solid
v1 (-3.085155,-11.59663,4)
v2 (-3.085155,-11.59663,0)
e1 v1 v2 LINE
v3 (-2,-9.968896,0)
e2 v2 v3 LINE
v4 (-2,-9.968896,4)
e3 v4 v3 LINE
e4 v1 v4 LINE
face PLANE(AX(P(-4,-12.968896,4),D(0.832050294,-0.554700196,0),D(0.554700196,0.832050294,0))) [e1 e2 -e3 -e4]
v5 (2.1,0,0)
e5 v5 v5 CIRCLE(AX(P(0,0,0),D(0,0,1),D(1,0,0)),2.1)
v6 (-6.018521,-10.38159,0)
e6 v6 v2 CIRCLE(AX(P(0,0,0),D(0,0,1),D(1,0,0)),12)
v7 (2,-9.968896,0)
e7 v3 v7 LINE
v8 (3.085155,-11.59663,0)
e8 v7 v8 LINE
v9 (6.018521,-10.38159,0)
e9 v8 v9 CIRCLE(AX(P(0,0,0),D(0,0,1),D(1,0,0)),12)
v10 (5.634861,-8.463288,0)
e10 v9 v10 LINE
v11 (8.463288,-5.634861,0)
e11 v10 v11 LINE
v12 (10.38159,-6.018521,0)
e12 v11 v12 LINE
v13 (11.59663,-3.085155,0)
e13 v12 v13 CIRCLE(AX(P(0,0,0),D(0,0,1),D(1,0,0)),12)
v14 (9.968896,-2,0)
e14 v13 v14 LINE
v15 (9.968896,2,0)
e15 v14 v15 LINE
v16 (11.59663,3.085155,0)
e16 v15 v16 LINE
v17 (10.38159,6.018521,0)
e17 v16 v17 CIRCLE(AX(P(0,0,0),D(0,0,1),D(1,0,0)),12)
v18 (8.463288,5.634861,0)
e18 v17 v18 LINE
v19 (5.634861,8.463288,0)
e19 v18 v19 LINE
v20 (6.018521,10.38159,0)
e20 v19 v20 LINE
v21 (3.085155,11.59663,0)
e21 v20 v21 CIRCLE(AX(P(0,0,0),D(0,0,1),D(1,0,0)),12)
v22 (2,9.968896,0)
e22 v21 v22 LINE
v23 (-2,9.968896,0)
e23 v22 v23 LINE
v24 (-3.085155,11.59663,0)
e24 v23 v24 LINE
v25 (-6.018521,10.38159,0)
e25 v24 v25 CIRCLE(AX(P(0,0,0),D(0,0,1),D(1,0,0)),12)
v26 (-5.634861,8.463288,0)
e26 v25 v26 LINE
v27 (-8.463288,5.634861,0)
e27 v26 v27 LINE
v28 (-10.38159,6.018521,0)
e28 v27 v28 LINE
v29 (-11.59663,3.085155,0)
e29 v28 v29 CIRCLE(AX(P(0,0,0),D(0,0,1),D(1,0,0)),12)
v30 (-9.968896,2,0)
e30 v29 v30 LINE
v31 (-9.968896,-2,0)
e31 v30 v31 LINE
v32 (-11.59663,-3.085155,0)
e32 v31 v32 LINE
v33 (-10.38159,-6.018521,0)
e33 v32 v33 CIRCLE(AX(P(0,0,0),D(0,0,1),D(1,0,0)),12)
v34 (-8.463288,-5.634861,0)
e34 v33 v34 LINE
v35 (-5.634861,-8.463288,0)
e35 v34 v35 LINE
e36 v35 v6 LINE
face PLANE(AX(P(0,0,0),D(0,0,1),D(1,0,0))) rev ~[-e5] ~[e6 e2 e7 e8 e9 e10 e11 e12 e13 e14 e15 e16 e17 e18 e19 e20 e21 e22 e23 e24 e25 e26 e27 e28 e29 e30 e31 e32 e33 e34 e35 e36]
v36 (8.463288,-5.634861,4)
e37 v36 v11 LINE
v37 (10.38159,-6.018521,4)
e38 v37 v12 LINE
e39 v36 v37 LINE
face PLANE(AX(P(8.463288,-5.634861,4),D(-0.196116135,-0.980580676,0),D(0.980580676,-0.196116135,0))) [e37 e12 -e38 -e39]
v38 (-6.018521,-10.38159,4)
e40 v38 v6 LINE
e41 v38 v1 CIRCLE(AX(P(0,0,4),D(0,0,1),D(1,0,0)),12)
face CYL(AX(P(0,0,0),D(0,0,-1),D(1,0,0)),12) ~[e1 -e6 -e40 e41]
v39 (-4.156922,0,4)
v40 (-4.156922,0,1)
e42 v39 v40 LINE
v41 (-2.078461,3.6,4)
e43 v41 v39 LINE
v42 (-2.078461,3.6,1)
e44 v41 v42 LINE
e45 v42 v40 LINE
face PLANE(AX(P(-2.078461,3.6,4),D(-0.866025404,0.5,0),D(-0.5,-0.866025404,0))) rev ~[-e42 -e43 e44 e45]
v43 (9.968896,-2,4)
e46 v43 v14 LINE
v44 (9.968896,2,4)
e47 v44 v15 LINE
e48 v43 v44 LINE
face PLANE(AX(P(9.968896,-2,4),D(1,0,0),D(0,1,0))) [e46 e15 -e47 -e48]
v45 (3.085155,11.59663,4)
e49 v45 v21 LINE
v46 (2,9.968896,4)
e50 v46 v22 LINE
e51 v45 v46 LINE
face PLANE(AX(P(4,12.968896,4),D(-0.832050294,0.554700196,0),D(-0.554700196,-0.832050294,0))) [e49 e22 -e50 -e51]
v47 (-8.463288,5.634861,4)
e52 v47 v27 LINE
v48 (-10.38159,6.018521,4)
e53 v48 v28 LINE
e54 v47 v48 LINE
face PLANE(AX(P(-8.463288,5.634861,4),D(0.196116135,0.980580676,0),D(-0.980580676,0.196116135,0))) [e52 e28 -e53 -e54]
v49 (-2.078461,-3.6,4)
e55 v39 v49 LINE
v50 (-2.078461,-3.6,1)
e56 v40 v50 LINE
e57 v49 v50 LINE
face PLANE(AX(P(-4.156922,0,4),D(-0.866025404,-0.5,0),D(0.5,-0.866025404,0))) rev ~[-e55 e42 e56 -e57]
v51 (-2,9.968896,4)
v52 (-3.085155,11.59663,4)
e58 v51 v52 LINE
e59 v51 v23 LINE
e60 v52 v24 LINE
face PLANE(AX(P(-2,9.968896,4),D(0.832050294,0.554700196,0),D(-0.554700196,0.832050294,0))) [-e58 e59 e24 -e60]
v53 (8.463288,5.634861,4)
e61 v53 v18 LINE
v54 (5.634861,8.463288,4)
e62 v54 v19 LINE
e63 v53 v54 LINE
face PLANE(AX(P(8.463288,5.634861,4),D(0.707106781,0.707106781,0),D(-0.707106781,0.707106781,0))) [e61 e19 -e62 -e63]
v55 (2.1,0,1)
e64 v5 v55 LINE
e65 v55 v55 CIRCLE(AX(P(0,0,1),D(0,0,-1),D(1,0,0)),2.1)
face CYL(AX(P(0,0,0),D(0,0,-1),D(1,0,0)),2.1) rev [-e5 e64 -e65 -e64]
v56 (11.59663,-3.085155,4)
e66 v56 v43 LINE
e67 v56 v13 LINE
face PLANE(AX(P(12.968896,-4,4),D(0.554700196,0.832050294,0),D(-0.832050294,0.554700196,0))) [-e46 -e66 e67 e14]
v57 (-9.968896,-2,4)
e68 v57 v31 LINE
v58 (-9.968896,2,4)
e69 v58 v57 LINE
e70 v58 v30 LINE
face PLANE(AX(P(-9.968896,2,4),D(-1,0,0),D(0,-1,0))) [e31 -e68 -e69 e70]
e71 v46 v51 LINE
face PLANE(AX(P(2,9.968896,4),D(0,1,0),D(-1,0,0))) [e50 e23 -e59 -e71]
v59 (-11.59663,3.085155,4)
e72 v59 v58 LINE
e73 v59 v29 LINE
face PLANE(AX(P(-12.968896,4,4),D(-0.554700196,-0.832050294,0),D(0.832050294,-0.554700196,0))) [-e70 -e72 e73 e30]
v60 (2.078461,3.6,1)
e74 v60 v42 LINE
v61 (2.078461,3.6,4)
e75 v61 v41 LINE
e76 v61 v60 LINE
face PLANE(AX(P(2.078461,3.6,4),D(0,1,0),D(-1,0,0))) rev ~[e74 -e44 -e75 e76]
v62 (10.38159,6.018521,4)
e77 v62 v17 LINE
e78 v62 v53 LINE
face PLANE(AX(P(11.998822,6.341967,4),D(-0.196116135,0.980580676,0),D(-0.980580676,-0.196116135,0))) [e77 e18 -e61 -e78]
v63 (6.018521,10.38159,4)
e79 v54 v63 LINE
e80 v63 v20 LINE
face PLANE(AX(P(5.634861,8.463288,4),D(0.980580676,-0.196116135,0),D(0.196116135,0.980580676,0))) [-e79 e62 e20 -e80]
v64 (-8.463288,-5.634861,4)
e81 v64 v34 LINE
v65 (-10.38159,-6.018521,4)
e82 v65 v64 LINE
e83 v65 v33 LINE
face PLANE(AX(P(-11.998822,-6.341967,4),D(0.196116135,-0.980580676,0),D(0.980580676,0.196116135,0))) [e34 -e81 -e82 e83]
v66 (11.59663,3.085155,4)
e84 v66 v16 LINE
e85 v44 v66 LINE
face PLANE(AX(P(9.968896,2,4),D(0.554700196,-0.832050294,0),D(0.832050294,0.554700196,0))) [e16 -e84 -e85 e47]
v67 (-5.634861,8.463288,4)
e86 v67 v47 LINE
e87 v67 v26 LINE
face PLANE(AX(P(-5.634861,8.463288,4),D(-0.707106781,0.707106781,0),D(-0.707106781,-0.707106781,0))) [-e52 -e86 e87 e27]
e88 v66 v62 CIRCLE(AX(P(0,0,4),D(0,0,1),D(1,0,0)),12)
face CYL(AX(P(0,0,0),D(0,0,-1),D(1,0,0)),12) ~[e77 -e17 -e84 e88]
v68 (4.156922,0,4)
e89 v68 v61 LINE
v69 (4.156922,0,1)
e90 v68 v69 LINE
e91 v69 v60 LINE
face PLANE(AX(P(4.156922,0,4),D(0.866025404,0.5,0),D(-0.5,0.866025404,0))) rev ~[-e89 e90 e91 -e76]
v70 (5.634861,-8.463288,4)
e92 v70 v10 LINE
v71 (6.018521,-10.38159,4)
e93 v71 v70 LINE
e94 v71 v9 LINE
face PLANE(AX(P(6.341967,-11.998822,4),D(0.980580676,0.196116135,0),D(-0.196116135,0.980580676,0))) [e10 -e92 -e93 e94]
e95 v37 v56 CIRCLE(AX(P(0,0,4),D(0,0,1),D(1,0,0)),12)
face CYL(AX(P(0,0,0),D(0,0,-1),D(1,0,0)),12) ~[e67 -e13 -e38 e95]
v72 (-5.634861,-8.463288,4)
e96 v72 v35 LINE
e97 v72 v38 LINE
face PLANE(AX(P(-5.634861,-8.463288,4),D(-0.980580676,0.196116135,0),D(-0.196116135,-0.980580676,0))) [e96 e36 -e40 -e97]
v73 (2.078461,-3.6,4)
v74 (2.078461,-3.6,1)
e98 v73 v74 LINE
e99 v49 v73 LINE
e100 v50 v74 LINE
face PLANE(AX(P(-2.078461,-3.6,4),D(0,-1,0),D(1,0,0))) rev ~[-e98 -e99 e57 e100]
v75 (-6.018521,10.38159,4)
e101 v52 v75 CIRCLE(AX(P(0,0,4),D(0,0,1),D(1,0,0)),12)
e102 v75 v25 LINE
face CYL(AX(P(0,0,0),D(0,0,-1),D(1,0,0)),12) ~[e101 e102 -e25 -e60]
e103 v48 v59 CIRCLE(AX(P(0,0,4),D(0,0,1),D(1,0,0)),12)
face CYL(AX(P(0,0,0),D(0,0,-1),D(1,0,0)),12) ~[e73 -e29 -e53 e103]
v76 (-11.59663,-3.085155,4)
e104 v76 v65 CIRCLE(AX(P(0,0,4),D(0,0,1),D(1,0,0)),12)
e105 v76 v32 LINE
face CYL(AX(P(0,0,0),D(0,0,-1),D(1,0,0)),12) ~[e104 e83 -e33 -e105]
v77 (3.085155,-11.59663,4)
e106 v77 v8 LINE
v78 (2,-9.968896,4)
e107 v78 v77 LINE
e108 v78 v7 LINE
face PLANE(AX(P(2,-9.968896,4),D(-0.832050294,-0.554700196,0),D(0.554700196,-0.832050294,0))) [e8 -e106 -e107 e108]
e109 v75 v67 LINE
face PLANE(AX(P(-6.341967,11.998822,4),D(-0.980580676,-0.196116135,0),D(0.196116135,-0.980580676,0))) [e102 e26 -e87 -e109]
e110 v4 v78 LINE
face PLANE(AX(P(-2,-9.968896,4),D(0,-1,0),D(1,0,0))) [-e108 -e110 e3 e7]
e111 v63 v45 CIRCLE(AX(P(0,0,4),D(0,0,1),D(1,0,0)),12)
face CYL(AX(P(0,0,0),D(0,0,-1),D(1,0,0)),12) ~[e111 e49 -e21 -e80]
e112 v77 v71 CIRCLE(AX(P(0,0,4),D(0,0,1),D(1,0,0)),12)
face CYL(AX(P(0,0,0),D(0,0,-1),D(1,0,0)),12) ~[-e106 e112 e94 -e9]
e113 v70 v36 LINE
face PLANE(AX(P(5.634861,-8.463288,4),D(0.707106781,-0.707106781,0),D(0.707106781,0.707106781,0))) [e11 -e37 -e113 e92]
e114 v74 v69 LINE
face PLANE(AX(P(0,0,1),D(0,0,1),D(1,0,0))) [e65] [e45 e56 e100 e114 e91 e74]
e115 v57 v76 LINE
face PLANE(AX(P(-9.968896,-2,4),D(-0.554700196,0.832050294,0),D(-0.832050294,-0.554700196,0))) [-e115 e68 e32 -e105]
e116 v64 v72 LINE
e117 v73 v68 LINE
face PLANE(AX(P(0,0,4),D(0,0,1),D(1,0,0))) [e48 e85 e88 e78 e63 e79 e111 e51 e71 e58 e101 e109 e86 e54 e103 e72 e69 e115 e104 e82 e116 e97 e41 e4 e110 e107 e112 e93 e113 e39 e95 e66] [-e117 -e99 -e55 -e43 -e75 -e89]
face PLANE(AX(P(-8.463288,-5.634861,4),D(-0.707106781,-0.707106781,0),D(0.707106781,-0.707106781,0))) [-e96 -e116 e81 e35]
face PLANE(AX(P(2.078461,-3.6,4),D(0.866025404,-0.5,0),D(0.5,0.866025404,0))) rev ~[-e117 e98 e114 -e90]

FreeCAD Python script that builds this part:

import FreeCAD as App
import Part
import Sketcher

V = App.Vector
Q = App.Units.Quantity

doc = App.newDocument("Part")
body = doc.addObject("PartDesign::Body", "Body")

sketch1 = body.newObject("Sketcher::SketchObject", "Sketch")
sketch1.AttachmentSupport = (doc.getObject("XY_Plane"), [""])
sketch1.MapMode = "FlatFace"
sketch1.addGeometry(Part.Circle(V(0, 0, 0), V(0, 0, 1), 12), False)
sketch1.addGeometry(Part.Circle(V(0, 0, 0), V(0, 0, 1), 2.1), False)
sketch1.addConstraint(Sketcher.Constraint("Coincident", 0, 3, -1, 1))
sketch1.addConstraint(Sketcher.Constraint("Coincident", 1, 3, -1, 1))
sketch1.addConstraint(Sketcher.Constraint("Diameter", 0, 24.0))
sketch1.addConstraint(Sketcher.Constraint("Diameter", 1, 4.2))
pad1 = body.newObject("PartDesign::Pad", "Pad")
pad1.Profile = sketch1
pad1.Length = 4

sketch2 = body.newObject("Sketcher::SketchObject", "Sketch001")
sketch2.AttachmentSupport = (doc.getObject("XY_Plane"), [""])
sketch2.MapMode = "FlatFace"
sketch2.AttachmentOffset = App.Placement(V(0, 0, 4), App.Rotation())
sketch2.addGeometry(Part.LineSegment(V(4.2, 0, 0), V(2.1, 3.6, 0)), False)
sketch2.addGeometry(Part.LineSegment(V(2.1, 3.6, 0), V(-2.1, 3.6, 0)), False)
sketch2.addGeometry(Part.LineSegment(V(-2.1, 3.6, 0), V(-4.2, 0, 0)), False)
sketch2.addGeometry(Part.LineSegment(V(-4.2, 0, 0), V(-2.1, -3.6, 0)), False)
sketch2.addGeometry(Part.LineSegment(V(-2.1, -3.6, 0), V(2.1, -3.6, 0)), False)
sketch2.addGeometry(Part.LineSegment(V(2.1, -3.6, 0), V(4.2, 0, 0)), False)
sketch2.addConstraint(Sketcher.Constraint("Coincident", 0, 2, 1, 1))
sketch2.addConstraint(Sketcher.Constraint("Coincident", 1, 2, 2, 1))
sketch2.addConstraint(Sketcher.Constraint("Coincident", 2, 2, 3, 1))
sketch2.addConstraint(Sketcher.Constraint("Coincident", 3, 2, 4, 1))
sketch2.addConstraint(Sketcher.Constraint("Coincident", 4, 2, 5, 1))
sketch2.addConstraint(Sketcher.Constraint("Coincident", 5, 2, 0, 1))
sketch2.addConstraint(Sketcher.Constraint("Horizontal", 1))
sketch2.addConstraint(Sketcher.Constraint("Horizontal", 4))
sketch2.addConstraint(Sketcher.Constraint("Symmetric", 0, 2, 3, 2, -1, 1))
sketch2.addConstraint(Sketcher.Constraint("Symmetric", 2, 2, 5, 2, -1, 1))
sketch2.addConstraint(Sketcher.Constraint("PointOnObject", 2, 2, -1))
sketch2.addConstraint(Sketcher.Constraint("Parallel", 2, 5))
sketch2.addConstraint(Sketcher.Constraint("Vertical", 1, 2, 3, 2))
sketch2.addConstraint(Sketcher.Constraint("Angle", 0, Q("120 deg")))
sketch2.addConstraint(Sketcher.Constraint("DistanceY", -1, 1, 0, 2, 3.6))
sketch2.addConstraint(Sketcher.Constraint("DistanceX", 1, 2, 1, 1, 4.156922))
pocket1 = body.newObject("PartDesign::Pocket", "Pocket")
pocket1.Profile = sketch2
pocket1.Length = 3

sketch3 = body.newObject("Sketcher::SketchObject", "Sketch002")
sketch3.AttachmentSupport = (doc.getObject("XY_Plane"), [""])
sketch3.MapMode = "FlatFace"
sketch3.AttachmentOffset = App.Placement(V(0, 0, 4), App.Rotation())
sketch3.addGeometry(Part.LineSegment(V(13, 4, 0), V(10, 2, 0)), False)
sketch3.addGeometry(Part.LineSegment(V(10, 2, 0), V(10, -2, 0)), False)
sketch3.addGeometry(Part.LineSegment(V(10, -2, 0), V(13, -4, 0)), False)
sketch3.addGeometry(Part.LineSegment(V(13, -4, 0), V(13, 4, 0)), False)
sketch3.addConstraint(Sketcher.Constraint("Coincident", 0, 2, 1, 1))
sketch3.addConstraint(Sketcher.Constraint("Coincident", 1, 2, 2, 1))
sketch3.addConstraint(Sketcher.Constraint("Coincident", 2, 2, 3, 1))
sketch3.addConstraint(Sketcher.Constraint("Coincident", 3, 2, 0, 1))
sketch3.addConstraint(Sketcher.Constraint("Vertical", 1))
sketch3.addConstraint(Sketcher.Constraint("Vertical", 3))
sketch3.addConstraint(Sketcher.Constraint("Equal", 0, 2))
sketch3.addConstraint(Sketcher.Constraint("DistanceY", 1, 2, 1, 1, 4.0))
sketch3.addConstraint(Sketcher.Constraint("DistanceY", 3, 1, 3, 2, 8.0))
sketch3.addConstraint(Sketcher.Constraint("DistanceY", -1, 1, 0, 2, 2.0))
sketch3.addConstraint(Sketcher.Constraint("DistanceX", 1, 2, 2, 2, 3.0))
sketch3.addConstraint(Sketcher.Constraint("DistanceX", -1, 1, 0, 2, 9.968896))
pocket2 = body.newObject("PartDesign::Pocket", "Pocket001")
pocket2.Profile = sketch3
pocket2.Length = 4
doc.recompute()

polarpattern = body.newObject("PartDesign::PolarPattern", "PolarPattern")
polarpattern.Originals = [pocket2]
polarpattern.Axis = (doc.getObject("Z_Axis"), [""])
polarpattern.Angle = 360
polarpattern.Occurrences = 8
body.Tip = polarpattern

doc.recompute()
